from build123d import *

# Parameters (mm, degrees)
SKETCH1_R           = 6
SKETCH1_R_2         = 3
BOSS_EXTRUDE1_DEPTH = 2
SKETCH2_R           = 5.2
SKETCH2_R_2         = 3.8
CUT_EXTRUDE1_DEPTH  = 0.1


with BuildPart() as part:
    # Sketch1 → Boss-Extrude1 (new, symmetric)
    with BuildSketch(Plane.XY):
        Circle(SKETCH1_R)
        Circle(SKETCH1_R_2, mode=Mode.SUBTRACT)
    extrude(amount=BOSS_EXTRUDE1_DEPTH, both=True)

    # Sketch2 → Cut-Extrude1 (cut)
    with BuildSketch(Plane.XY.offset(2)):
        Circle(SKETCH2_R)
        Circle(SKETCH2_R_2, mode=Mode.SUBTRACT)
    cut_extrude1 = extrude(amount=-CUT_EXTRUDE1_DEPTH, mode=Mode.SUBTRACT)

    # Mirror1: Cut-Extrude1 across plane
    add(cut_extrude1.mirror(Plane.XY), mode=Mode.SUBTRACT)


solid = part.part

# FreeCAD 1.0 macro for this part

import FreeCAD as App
import Part
import Sketcher
from FreeCAD import Vector

doc = App.newDocument("Part")
body = doc.addObject("PartDesign::Body", "Body")

# Sketch on XY plane
sketch1 = body.newObject("Sketcher::SketchObject", "Sketch")
sketch1.AttachmentSupport = (doc.getObject("XY_Plane"), [""])
sketch1.MapMode = "FlatFace"
sketch1.addGeometry([
    Part.Circle(Vector(0, 0, 0), Vector(0, 0, 1), 6),
    Part.Circle(Vector(0, 0, 0), Vector(0, 0, 1), 3),
], False)
sketch1.addConstraint([
    Sketcher.Constraint("Coincident", 0, 3, -1, 1),
    Sketcher.Constraint("Coincident", 1, 3, -1, 1),
    Sketcher.Constraint("Diameter", 0, 12.0),
    Sketcher.Constraint("Diameter", 1, 6.0),
])
pad1 = body.newObject("PartDesign::Pad", "Pad")
pad1.Profile = sketch1
pad1.Length = 4
pad1.Midplane = True

# Sketch on XY plane
sketch2 = body.newObject("Sketcher::SketchObject", "Sketch001")
sketch2.AttachmentSupport = (doc.getObject("XY_Plane"), [""])
sketch2.MapMode = "FlatFace"
sketch2.AttachmentOffset = App.Placement(Vector(0, 0, 2), App.Rotation())
sketch2.addGeometry([
    Part.Circle(Vector(0, 0, 0), Vector(0, 0, 1), 5.2),
    Part.Circle(Vector(0, 0, 0), Vector(0, 0, 1), 3.8),
], False)
sketch2.addConstraint([
    Sketcher.Constraint("Coincident", 0, 3, -1, 1),
    Sketcher.Constraint("Coincident", 1, 3, -1, 1),
    Sketcher.Constraint("Diameter", 0, 10.4),
    Sketcher.Constraint("Diameter", 1, 7.6),
])
pocket1 = body.newObject("PartDesign::Pocket", "Pocket")
pocket1.Profile = sketch2
pocket1.Length = 0.1
doc.recompute()

mirrored = body.newObject("PartDesign::Mirrored", "Mirrored")
mirrored.Originals = [pocket1]
mirrored.MirrorPlane = (doc.getObject("XY_Plane"), [""])
body.Tip = mirrored

doc.recompute()
